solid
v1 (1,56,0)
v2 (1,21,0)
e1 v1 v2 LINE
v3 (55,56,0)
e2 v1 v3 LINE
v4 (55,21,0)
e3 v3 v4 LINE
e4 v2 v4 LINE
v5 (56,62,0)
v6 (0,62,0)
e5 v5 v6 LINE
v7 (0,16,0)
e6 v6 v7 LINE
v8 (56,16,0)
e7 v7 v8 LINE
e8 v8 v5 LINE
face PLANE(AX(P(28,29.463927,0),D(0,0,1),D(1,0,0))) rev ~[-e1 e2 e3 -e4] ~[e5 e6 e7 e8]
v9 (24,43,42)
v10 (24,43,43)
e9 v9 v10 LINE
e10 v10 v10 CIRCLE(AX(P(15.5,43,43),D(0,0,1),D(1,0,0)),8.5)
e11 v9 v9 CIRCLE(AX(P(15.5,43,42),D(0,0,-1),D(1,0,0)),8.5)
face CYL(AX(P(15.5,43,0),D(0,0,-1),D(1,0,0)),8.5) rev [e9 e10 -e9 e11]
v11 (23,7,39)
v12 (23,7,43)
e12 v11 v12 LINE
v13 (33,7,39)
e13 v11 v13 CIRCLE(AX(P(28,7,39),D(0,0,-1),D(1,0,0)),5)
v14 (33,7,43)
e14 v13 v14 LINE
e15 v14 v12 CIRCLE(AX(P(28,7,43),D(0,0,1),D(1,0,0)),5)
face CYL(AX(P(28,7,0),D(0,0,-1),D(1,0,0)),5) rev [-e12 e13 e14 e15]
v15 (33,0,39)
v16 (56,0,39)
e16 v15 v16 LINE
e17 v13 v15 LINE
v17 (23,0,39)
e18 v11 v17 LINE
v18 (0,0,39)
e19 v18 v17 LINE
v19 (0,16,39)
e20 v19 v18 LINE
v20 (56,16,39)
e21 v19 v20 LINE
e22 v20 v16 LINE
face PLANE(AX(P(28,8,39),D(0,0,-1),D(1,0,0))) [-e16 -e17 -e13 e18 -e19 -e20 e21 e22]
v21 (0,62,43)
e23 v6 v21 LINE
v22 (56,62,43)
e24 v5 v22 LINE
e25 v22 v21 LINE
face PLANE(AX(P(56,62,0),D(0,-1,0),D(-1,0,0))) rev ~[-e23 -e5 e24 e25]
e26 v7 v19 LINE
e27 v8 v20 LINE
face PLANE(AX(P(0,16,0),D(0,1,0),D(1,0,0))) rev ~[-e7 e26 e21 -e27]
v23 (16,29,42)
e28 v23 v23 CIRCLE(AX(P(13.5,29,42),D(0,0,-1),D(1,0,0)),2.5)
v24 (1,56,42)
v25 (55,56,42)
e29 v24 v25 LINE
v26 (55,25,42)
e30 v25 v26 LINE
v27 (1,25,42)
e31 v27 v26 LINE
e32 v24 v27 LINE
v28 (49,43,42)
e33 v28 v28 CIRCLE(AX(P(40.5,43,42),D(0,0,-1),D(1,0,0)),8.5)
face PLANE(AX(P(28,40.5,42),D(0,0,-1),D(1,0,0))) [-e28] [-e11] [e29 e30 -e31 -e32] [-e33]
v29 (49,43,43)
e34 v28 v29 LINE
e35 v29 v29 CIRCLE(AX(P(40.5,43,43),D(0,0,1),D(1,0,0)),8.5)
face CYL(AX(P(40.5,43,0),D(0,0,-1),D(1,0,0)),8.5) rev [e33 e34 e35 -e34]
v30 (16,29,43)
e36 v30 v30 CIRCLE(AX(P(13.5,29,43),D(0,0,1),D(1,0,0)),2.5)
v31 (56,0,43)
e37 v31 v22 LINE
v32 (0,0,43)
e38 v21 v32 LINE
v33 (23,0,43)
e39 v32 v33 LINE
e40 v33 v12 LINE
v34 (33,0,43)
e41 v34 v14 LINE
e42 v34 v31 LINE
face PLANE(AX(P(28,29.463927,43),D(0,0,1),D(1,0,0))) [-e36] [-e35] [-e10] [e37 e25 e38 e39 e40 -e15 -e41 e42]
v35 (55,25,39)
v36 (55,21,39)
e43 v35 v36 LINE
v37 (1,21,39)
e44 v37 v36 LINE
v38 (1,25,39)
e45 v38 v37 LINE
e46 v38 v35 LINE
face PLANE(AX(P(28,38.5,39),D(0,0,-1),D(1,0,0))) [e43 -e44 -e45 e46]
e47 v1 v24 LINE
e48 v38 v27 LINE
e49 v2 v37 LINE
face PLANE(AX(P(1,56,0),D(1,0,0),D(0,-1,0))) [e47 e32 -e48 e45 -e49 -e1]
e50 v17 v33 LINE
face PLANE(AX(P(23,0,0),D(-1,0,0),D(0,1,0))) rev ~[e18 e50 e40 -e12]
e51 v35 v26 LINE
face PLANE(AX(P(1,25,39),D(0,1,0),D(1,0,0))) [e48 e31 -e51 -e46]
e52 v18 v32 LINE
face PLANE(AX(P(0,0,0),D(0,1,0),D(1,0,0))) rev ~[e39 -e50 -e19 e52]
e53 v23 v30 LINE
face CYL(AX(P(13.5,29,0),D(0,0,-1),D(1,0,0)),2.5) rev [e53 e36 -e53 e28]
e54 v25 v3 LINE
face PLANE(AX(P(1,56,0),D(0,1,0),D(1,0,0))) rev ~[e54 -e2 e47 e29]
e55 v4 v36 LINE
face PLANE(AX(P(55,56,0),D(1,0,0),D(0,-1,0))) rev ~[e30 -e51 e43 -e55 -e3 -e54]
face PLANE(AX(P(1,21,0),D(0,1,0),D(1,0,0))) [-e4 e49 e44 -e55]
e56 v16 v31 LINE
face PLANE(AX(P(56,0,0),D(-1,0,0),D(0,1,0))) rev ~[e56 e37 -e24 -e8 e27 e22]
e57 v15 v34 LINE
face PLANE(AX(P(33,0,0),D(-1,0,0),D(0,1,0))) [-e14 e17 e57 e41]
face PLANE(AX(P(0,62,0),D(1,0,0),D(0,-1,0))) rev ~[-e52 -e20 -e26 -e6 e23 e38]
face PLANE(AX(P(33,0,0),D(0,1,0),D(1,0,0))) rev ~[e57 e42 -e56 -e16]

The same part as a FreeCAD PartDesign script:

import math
import FreeCAD as App
import Part
import Sketcher
Q = App.Units.Quantity

doc = App.newDocument("Part")
body = doc.addObject("PartDesign::Body", "Body")

# Sketch on XY plane
sketch1 = doc.addObject("Sketcher::SketchObject", "Sketch")
body.addObject(sketch1)
sketch1.AttachmentSupport = (doc.XY_Plane, [""])
sketch1.MapMode = "FlatFace"
sketch1.addGeometry(Part.LineSegment(App.Vector(56, 0, 0), App.Vector(56, 62, 0)), False)
sketch1.addGeometry(Part.LineSegment(App.Vector(56, 62, 0), App.Vector(0, 62, 0)), False)
sketch1.addGeometry(Part.LineSegment(App.Vector(0, 62, 0), App.Vector(0, 0, 0)), False)
sketch1.addGeometry(Part.LineSegment(App.Vector(0, 0, 0), App.Vector(23, 0, 0)), False)
sketch1.addGeometry(Part.LineSegment(App.Vector(23, 0, 0), App.Vector(23, 7, 0)), False)
sketch1.addGeometry(Part.ArcOfCircle(Part.Circle(App.Vector(28, 7, 0), App.Vector(0, 0, 1), 5), math.radians(0), math.radians(180)), False)
sketch1.addGeometry(Part.LineSegment(App.Vector(33, 7, 0), App.Vector(33, 0, 0)), False)
sketch1.addGeometry(Part.LineSegment(App.Vector(33, 0, 0), App.Vector(56, 0, 0)), False)
sketch1.addGeometry(Part.Circle(App.Vector(13.5, 29, 0), App.Vector(0, 0, 1), 2.5), False)
sketch1.addGeometry(Part.Circle(App.Vector(15.5, 43, 0), App.Vector(0, 0, 1), 8.5), False)
sketch1.addGeometry(Part.Circle(App.Vector(40.5, 43, 0), App.Vector(0, 0, 1), 8.5), False)
sketch1.addConstraint(Sketcher.Constraint("Coincident", 0, 2, 1, 1))
sketch1.addConstraint(Sketcher.Constraint("Coincident", 1, 2, 2, 1))
sketch1.addConstraint(Sketcher.Constraint("Coincident", 2, 2, 3, 1))
sketch1.addConstraint(Sketcher.Constraint("Coincident", 3, 2, 4, 1))
sketch1.addConstraint(Sketcher.Constraint("Tangent", 4, 2, 5, 2))
sketch1.addConstraint(Sketcher.Constraint("Tangent", 5, 1, 6, 1))
sketch1.addConstraint(Sketcher.Constraint("Coincident", 6, 2, 7, 1))
sketch1.addConstraint(Sketcher.Constraint("Coincident", 7, 2, 0, 1))
sketch1.addConstraint(Sketcher.Constraint("Vertical", 0))
sketch1.addConstraint(Sketcher.Constraint("Horizontal", 1))
sketch1.addConstraint(Sketcher.Constraint("Vertical", 2))
sketch1.addConstraint(Sketcher.Constraint("Horizontal", 3))
sketch1.addConstraint(Sketcher.Constraint("Vertical", 4))
sketch1.addConstraint(Sketcher.Constraint("Vertical", 6))
sketch1.addConstraint(Sketcher.Constraint("Horizontal", 7))
sketch1.addConstraint(Sketcher.Constraint("Coincident", 2, 2, -1, 1))
sketch1.addConstraint(Sketcher.Constraint("Equal", 9, 10))
sketch1.addConstraint(Sketcher.Constraint("PointOnObject", 6, 2, -1))
sketch1.addConstraint(Sketcher.Constraint("Horizontal", 9, 3, 10, 3))
sketch1.addConstraint(Sketcher.Constraint("Equal", 3, 7))
sketch1.addConstraint(Sketcher.Constraint("Diameter", 8, Q("5 mm")))
sketch1.addConstraint(Sketcher.Constraint("Diameter", 9, Q("17 mm")))
sketch1.addConstraint(Sketcher.Constraint("Radius", 5, Q("5 mm")))
sketch1.addConstraint(Sketcher.Constraint("DistanceX", 1, 2, 1, 1, Q("56 mm")))
sketch1.addConstraint(Sketcher.Constraint("DistanceY", 0, 1, 0, 2, Q("62 mm")))
sketch1.addConstraint(Sketcher.Constraint("DistanceY", 4, 1, 4, 2, Q("7 mm")))
sketch1.addConstraint(Sketcher.Constraint("DistanceY", -1, 1, 8, 3, Q("29 mm")))
sketch1.addConstraint(Sketcher.Constraint("DistanceY", -1, 1, 9, 3, Q("43 mm")))
sketch1.addConstraint(Sketcher.Constraint("DistanceX", 8, 3, 9, 3, Q("2 mm")))
sketch1.addConstraint(Sketcher.Constraint("DistanceX", 9, 3, 10, 3, Q("25 mm")))
sketch1.addConstraint(Sketcher.Constraint("DistanceX", -1, 1, 8, 3, Q("13.5 mm")))
pad1 = doc.addObject("PartDesign::Pad", "Pad")
body.addObject(pad1)
pad1.Profile = sketch1
pad1.Length = 43

# Sketch on XY plane
sketch2 = doc.addObject("Sketcher::SketchObject", "Sketch001")
body.addObject(sketch2)
sketch2.AttachmentSupport = (doc.XY_Plane, [""])
sketch2.MapMode = "FlatFace"
sketch2.addGeometry(Part.LineSegment(App.Vector(0, 0, 0), App.Vector(0, 16, 0)), False)
sketch2.addGeometry(Part.LineSegment(App.Vector(0, 16, 0), App.Vector(56, 16, 0)), False)
sketch2.addGeometry(Part.LineSegment(App.Vector(56, 16, 0), App.Vector(56, 0, 0)), False)
sketch2.addGeometry(Part.LineSegment(App.Vector(56, 0, 0), App.Vector(0, 0, 0)), False)
sketch2.addGeometry(Part.LineSegment(App.Vector(1, 21, 0), App.Vector(1, 56, 0)), False)
sketch2.addGeometry(Part.LineSegment(App.Vector(1, 56, 0), App.Vector(55, 56, 0)), False)
sketch2.addGeometry(Part.LineSegment(App.Vector(55, 56, 0), App.Vector(55, 21, 0)), False)
sketch2.addGeometry(Part.LineSegment(App.Vector(55, 21, 0), App.Vector(1, 21, 0)), False)
sketch2.addConstraint(Sketcher.Constraint("Coincident", 0, 2, 1, 1))
sketch2.addConstraint(Sketcher.Constraint("Coincident", 1, 2, 2, 1))
sketch2.addConstraint(Sketcher.Constraint("Coincident", 2, 2, 3, 1))
sketch2.addConstraint(Sketcher.Constraint("Coincident", 3, 2, 0, 1))
sketch2.addConstraint(Sketcher.Constraint("Coincident", 4, 2, 5, 1))
sketch2.addConstraint(Sketcher.Constraint("Coincident", 5, 2, 6, 1))
sketch2.addConstraint(Sketcher.Constraint("Coincident", 6, 2, 7, 1))
sketch2.addConstraint(Sketcher.Constraint("Coincident", 7, 2, 4, 1))
sketch2.addConstraint(Sketcher.Constraint("Vertical", 0))
sketch2.addConstraint(Sketcher.Constraint("Horizontal", 1))
sketch2.addConstraint(Sketcher.Constraint("Vertical", 2))
sketch2.addConstraint(Sketcher.Constraint("Horizontal", 3))
sketch2.addConstraint(Sketcher.Constraint("Vertical", 4))
sketch2.addConstraint(Sketcher.Constraint("Horizontal", 5))
sketch2.addConstraint(Sketcher.Constraint("Vertical", 6))
sketch2.addConstraint(Sketcher.Constraint("Horizontal", 7))
sketch2.addConstraint(Sketcher.Constraint("Coincident", 3, 2, -1, 1))
sketch2.addConstraint(Sketcher.Constraint("DistanceX", 1, 1, 1, 2, Q("56 mm")))
sketch2.addConstraint(Sketcher.Constraint("DistanceX", 5, 1, 5, 2, Q("54 mm")))
sketch2.addConstraint(Sketcher.Constraint("DistanceY", 0, 1, 0, 2, Q("16 mm")))
sketch2.addConstraint(Sketcher.Constraint("DistanceY", 4, 1, 4, 2, Q("35 mm")))
sketch2.addConstraint(Sketcher.Constraint("DistanceX", -1, 1, 4, 2, Q("1 mm")))
sketch2.addConstraint(Sketcher.Constraint("DistanceY", -1, 1, 4, 2, Q("56 mm")))
pocket1 = doc.addObject("PartDesign::Pocket", "Pocket")
body.addObject(pocket1)
pocket1.Profile = sketch2
pocket1.Length = 39
pocket1.Reversed = True

# Sketch on XY plane
sketch3 = doc.addObject("Sketcher::SketchObject", "Sketch002")
body.addObject(sketch3)
sketch3.AttachmentSupport = (doc.XY_Plane, [""])
sketch3.MapMode = "FlatFace"
sketch3.AttachmentOffset = App.Placement(App.Vector(0, 0, 39), App.Rotation())
sketch3.addGeometry(Part.LineSegment(App.Vector(1, 25, 0), App.Vector(1, 56, 0)), False)
sketch3.addGeometry(Part.LineSegment(App.Vector(1, 56, 0), App.Vector(55, 56, 0)), False)
sketch3.addGeometry(Part.LineSegment(App.Vector(55, 56, 0), App.Vector(55, 25, 0)), False)
sketch3.addGeometry(Part.LineSegment(App.Vector(55, 25, 0), App.Vector(1, 25, 0)), False)
sketch3.addConstraint(Sketcher.Constraint("Coincident", 0, 2, 1, 1))
sketch3.addConstraint(Sketcher.Constraint("Coincident", 1, 2, 2, 1))
sketch3.addConstraint(Sketcher.Constraint("Coincident", 2, 2, 3, 1))
sketch3.addConstraint(Sketcher.Constraint("Coincident", 3, 2, 0, 1))
sketch3.addConstraint(Sketcher.Constraint("Vertical", 0))
sketch3.addConstraint(Sketcher.Constraint("Horizontal", 1))
sketch3.addConstraint(Sketcher.Constraint("Vertical", 2))
sketch3.addConstraint(Sketcher.Constraint("Horizontal", 3))
sketch3.addConstraint(Sketcher.Constraint("DistanceX", 1, 1, 1, 2, Q("54 mm")))
sketch3.addConstraint(Sketcher.Constraint("DistanceY", 0, 1, 0, 2, Q("31 mm")))
sketch3.addConstraint(Sketcher.Constraint("DistanceX", -1, 1, 0, 2, Q("1 mm")))
sketch3.addConstraint(Sketcher.Constraint("DistanceY", -1, 1, 0, 2, Q("56 mm")))
pocket2 = doc.addObject("PartDesign::Pocket", "Pocket001")
body.addObject(pocket2)
pocket2.Profile = sketch3
pocket2.Length = 3
pocket2.Reversed = True

doc.recompute()
